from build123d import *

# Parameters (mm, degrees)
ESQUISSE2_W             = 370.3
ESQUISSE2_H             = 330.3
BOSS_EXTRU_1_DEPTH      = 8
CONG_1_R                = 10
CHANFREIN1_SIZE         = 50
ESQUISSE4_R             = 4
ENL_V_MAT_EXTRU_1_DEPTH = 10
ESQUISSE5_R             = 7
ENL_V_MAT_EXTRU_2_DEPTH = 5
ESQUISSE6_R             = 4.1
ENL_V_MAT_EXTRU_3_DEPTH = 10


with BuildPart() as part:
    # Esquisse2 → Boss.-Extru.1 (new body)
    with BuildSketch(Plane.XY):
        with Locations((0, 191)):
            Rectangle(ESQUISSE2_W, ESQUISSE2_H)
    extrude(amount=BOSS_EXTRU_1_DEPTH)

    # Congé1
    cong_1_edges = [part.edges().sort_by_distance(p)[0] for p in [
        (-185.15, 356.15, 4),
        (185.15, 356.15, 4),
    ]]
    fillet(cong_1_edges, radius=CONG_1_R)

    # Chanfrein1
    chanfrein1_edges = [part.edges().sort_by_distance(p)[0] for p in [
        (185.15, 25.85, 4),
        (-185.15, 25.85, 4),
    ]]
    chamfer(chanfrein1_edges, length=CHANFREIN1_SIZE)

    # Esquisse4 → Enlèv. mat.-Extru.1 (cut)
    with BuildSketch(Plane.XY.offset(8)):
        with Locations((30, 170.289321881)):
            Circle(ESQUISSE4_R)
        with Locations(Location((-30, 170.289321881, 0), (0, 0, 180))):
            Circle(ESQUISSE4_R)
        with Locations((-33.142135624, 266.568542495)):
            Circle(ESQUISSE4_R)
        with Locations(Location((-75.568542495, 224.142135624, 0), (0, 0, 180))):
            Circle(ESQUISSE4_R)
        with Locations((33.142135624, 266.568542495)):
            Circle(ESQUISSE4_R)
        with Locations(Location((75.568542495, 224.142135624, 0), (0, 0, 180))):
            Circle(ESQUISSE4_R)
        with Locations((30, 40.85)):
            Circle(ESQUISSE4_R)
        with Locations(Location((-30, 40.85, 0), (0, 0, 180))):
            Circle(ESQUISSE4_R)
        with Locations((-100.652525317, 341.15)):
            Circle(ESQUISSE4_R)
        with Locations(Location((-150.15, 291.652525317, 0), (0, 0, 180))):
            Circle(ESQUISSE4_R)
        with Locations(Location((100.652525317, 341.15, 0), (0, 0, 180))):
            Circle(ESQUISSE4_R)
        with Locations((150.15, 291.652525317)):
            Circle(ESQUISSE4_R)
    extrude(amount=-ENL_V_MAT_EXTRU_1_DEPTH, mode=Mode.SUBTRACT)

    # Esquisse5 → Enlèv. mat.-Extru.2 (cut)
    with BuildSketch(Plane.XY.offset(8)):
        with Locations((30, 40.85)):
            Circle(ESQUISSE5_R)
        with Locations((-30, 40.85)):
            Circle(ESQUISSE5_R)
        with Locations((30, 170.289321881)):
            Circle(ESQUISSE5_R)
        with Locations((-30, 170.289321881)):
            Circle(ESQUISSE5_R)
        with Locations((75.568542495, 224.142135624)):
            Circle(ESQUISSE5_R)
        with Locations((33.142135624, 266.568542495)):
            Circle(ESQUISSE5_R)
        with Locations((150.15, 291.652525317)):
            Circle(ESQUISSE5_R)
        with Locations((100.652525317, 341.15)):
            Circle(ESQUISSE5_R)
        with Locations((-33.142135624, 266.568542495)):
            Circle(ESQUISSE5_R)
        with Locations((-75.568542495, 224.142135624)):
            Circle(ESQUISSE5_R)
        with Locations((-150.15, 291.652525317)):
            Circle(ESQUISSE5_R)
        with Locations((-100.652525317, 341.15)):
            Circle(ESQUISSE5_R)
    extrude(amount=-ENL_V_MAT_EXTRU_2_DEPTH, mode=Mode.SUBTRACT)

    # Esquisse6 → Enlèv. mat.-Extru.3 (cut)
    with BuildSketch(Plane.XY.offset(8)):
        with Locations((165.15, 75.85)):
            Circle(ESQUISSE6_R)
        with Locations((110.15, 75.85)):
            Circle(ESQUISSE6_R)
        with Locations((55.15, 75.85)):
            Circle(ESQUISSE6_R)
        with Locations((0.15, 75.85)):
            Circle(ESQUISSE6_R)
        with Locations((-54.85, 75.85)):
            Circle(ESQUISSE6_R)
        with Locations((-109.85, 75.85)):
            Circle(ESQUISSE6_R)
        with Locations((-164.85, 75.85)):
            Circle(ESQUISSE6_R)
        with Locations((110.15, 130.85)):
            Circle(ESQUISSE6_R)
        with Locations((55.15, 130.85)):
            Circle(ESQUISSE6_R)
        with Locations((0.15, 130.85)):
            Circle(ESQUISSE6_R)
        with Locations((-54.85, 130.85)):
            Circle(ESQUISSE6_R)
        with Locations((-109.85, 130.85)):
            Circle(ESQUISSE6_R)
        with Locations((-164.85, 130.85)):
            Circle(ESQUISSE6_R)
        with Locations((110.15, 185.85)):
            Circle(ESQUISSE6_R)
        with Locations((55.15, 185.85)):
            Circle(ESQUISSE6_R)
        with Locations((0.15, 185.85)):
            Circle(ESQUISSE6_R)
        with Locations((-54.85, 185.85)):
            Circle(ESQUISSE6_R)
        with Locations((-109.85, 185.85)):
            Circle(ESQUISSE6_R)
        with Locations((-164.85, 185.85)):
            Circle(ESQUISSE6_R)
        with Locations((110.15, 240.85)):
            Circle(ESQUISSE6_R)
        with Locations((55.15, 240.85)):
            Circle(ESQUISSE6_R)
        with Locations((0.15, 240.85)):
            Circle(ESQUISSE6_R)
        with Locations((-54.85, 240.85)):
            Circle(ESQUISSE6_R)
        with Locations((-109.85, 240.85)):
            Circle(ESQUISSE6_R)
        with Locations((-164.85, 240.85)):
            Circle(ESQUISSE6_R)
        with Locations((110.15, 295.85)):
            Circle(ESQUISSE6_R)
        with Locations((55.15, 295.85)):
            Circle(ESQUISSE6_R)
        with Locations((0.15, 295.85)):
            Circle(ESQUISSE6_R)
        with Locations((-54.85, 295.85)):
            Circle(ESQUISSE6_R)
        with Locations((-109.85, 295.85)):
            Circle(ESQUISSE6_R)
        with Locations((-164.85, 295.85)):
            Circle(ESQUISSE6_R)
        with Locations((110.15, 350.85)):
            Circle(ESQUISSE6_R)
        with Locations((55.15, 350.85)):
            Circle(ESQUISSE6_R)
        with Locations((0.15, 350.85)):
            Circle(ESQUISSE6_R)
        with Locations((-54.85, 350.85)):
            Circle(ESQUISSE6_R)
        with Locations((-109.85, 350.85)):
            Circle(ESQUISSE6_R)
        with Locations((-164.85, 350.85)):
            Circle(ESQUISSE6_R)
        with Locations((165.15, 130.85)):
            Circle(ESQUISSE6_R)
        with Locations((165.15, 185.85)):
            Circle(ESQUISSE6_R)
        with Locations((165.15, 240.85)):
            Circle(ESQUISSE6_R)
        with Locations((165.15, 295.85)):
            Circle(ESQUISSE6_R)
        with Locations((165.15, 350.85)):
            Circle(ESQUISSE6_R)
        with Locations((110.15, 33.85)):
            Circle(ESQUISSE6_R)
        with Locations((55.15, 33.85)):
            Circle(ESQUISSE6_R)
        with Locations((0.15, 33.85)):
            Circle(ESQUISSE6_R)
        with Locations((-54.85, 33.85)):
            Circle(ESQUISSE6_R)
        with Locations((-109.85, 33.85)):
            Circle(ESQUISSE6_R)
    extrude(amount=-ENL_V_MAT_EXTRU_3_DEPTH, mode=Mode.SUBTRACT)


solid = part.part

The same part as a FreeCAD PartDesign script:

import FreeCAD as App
import Part
import Sketcher
Q = App.Units.Quantity


def edges_at(feature, points):
    """Names of the edges that pass closest to the given points."""
    edges = feature.Shape.Edges
    near = lambda p: min(range(len(edges)), key=lambda i: edges[i].distToShape(Part.Vertex(*p))[0])
    return sorted({f"Edge{near(p) + 1}" for p in points})


def add_polygon(sketch, points):
    """Adds a closed chain of lines whose ends are joined by coincident constraints."""
    first, n = sketch.GeometryCount, len(points)
    for a, b in zip(points, points[1:] + points[:1]):
        sketch.addGeometry(Part.LineSegment(App.Vector(*a, 0), App.Vector(*b, 0)), False)
    for i in range(n):
        sketch.addConstraint(Sketcher.Constraint("Coincident", first + i, 2, first + (i + 1) % n, 1))

doc = App.newDocument("Part")
body = doc.addObject("PartDesign::Body", "Body")

# Sketch on XY plane
sketch1 = doc.addObject("Sketcher::SketchObject", "Sketch")
body.addObject(sketch1)
sketch1.AttachmentSupport = (doc.XY_Plane, [""])
sketch1.MapMode = "FlatFace"
add_polygon(sketch1, [(-185, 356), (-185, 26), (185, 26), (185, 356)])  # lines 0-3
sketch1.addConstraint([
    Sketcher.Constraint("Vertical", 0),
    Sketcher.Constraint("Horizontal", 1),
    Sketcher.Constraint("Vertical", 2),
    Sketcher.Constraint("Horizontal", 3),
    Sketcher.Constraint("DistanceX", 1, 1, 1, 2, Q("370.3 mm")),
    Sketcher.Constraint("DistanceY", 0, 2, 0, 1, Q("330.3 mm")),
    Sketcher.Constraint("DistanceX", 0, 2, -1, 1, Q("185.15 mm")),
    Sketcher.Constraint("DistanceY", -1, 1, 0, 2, Q("25.85 mm")),
])
pad1 = doc.addObject("PartDesign::Pad", "Pad")
body.addObject(pad1)
pad1.Profile = sketch1
pad1.Length = 8
doc.recompute()

fillet = doc.addObject("PartDesign::Fillet", "Fillet")
body.addObject(fillet)
fillet.Base = (pad1, edges_at(pad1, [(-185.15, 356.15, 4), (185.15, 356.15, 4)]))
fillet.Radius = 10
doc.recompute()

chamfer = doc.addObject("PartDesign::Chamfer", "Chamfer")
body.addObject(chamfer)
chamfer.Base = (fillet, edges_at(fillet, [(185.15, 25.85, 4), (-185.15, 25.85, 4)]))
chamfer.Size = 50

# Sketch on XY plane
sketch2 = doc.addObject("Sketcher::SketchObject", "Sketch001")
body.addObject(sketch2)
sketch2.AttachmentSupport = (doc.XY_Plane, [""])
sketch2.MapMode = "FlatFace"
sketch2.AttachmentOffset = App.Placement(App.Vector(0, 0, 8), App.Rotation())
sketch2.addGeometry([
    Part.Circle(App.Vector(30, 170.3, 0), App.Vector(0, 0, 1), 4),  # 0
    Part.Circle(App.Vector(-30, 170.3, 0), App.Vector(0, 0, 1), 4),  # 1
    Part.Circle(App.Vector(-33.1, 266.6, 0), App.Vector(0, 0, 1), 4),  # 2
    Part.Circle(App.Vector(-75.6, 224.1, 0), App.Vector(0, 0, 1), 4),  # 3
    Part.Circle(App.Vector(33.1, 266.6, 0), App.Vector(0, 0, 1), 4),  # 4
    Part.Circle(App.Vector(75.6, 224.1, 0), App.Vector(0, 0, 1), 4),  # 5
    Part.Circle(App.Vector(30, 40.9, 0), App.Vector(0, 0, 1), 4),  # 6
    Part.Circle(App.Vector(-30, 40.9, 0), App.Vector(0, 0, 1), 4),  # 7
    Part.Circle(App.Vector(-100.7, 341.1, 0), App.Vector(0, 0, 1), 4),  # 8
    Part.Circle(App.Vector(-150.2, 291.7, 0), App.Vector(0, 0, 1), 4),  # 9
    Part.Circle(App.Vector(100.7, 341.1, 0), App.Vector(0, 0, 1), 4),  # 10
    Part.Circle(App.Vector(150.2, 291.7, 0), App.Vector(0, 0, 1), 4),  # 11
], False)
sketch2.addConstraint([
    Sketcher.Constraint("Equal", 0, 1),
    Sketcher.Constraint("Equal", 1, 2),
    Sketcher.Constraint("Equal", 2, 3),
    Sketcher.Constraint("Equal", 3, 4),
    Sketcher.Constraint("Equal", 4, 5),
    Sketcher.Constraint("Equal", 5, 6),
    Sketcher.Constraint("Equal", 6, 7),
    Sketcher.Constraint("Equal", 7, 8),
    Sketcher.Constraint("Equal", 8, 9),
    Sketcher.Constraint("Equal", 9, 10),
    Sketcher.Constraint("Equal", 10, 11),
    Sketcher.Constraint("Symmetric", 0, 3, 1, 3, -2),
    Sketcher.Constraint("Symmetric", 2, 3, 4, 3, -2),
    Sketcher.Constraint("Symmetric", 3, 3, 5, 3, -2),
    Sketcher.Constraint("Symmetric", 6, 3, 7, 3, -2),
    Sketcher.Constraint("Symmetric", 8, 3, 10, 3, -2),
    Sketcher.Constraint("Symmetric", 9, 3, 11, 3, -2),
    Sketcher.Constraint("Vertical", 0, 3, 6, 3),
    Sketcher.Constraint("Diameter", 0, Q("8 mm")),
    Sketcher.Constraint("DistanceX", -1, 1, 0, 3, Q("30 mm")),
    Sketcher.Constraint("DistanceY", -1, 1, 6, 3, Q("40.85 mm")),
    Sketcher.Constraint("DistanceY", -1, 1, 8, 3, Q("341.15 mm")),
    Sketcher.Constraint("DistanceX", 9, 3, -1, 1, Q("150.15 mm")),
    Sketcher.Constraint("DistanceY", -1, 1, 0, 3, Q("170.289322 mm")),
    Sketcher.Constraint("DistanceY", 1, 3, 2, 3, Q("96.279221 mm")),
    Sketcher.Constraint("DistanceX", 2, 3, 4, 3, Q("66.284271 mm")),
    Sketcher.Constraint("DistanceX", 3, 3, 4, 3, Q("108.710678 mm")),
    Sketcher.Constraint("DistanceX", 8, 3, 2, 3, Q("67.51039 mm")),
    Sketcher.Constraint("DistanceY", 3, 3, 9, 3, Q("67.51039 mm")),
    Sketcher.Constraint("DistanceY", -1, 1, 3, 3, Q("224.142136 mm")),
])
pocket1 = doc.addObject("PartDesign::Pocket", "Pocket")
body.addObject(pocket1)
pocket1.Profile = sketch2
pocket1.Length = 10

# Sketch on XY plane
sketch3 = doc.addObject("Sketcher::SketchObject", "Sketch002")
body.addObject(sketch3)
sketch3.AttachmentSupport = (doc.XY_Plane, [""])
sketch3.MapMode = "FlatFace"
sketch3.AttachmentOffset = App.Placement(App.Vector(0, 0, 8), App.Rotation())
sketch3.addGeometry([
    Part.Circle(App.Vector(30, 41, 0), App.Vector(0, 0, 1), 7),  # 0
    Part.Circle(App.Vector(-30, 41, 0), App.Vector(0, 0, 1), 7),  # 1
    Part.Circle(App.Vector(30, 170, 0), App.Vector(0, 0, 1), 7),  # 2
    Part.Circle(App.Vector(-30, 170, 0), App.Vector(0, 0, 1), 7),  # 3
    Part.Circle(App.Vector(76, 224, 0), App.Vector(0, 0, 1), 7),  # 4
    Part.Circle(App.Vector(33, 267, 0), App.Vector(0, 0, 1), 7),  # 5
    Part.Circle(App.Vector(150, 292, 0), App.Vector(0, 0, 1), 7),  # 6
    Part.Circle(App.Vector(101, 341, 0), App.Vector(0, 0, 1), 7),  # 7
    Part.Circle(App.Vector(-33, 267, 0), App.Vector(0, 0, 1), 7),  # 8
    Part.Circle(App.Vector(-76, 224, 0), App.Vector(0, 0, 1), 7),  # 9
    Part.Circle(App.Vector(-150, 292, 0), App.Vector(0, 0, 1), 7),  # 10
    Part.Circle(App.Vector(-101, 341, 0), App.Vector(0, 0, 1), 7),  # 11
], False)
sketch3.addConstraint([
    Sketcher.Constraint("Equal", 0, 1),
    Sketcher.Constraint("Equal", 1, 2),
    Sketcher.Constraint("Equal", 2, 3),
    Sketcher.Constraint("Equal", 3, 4),
    Sketcher.Constraint("Equal", 4, 5),
    Sketcher.Constraint("Equal", 5, 6),
    Sketcher.Constraint("Equal", 6, 7),
    Sketcher.Constraint("Equal", 7, 8),
    Sketcher.Constraint("Equal", 8, 9),
    Sketcher.Constraint("Equal", 9, 10),
    Sketcher.Constraint("Equal", 10, 11),
    Sketcher.Constraint("Symmetric", 0, 3, 1, 3, -2),
    Sketcher.Constraint("Symmetric", 2, 3, 3, 3, -2),
    Sketcher.Constraint("Symmetric", 5, 3, 8, 3, -2),
    Sketcher.Constraint("Symmetric", 4, 3, 9, 3, -2),
    Sketcher.Constraint("Symmetric", 6, 3, 10, 3, -2),
    Sketcher.Constraint("Symmetric", 7, 3, 11, 3, -2),
    Sketcher.Constraint("Vertical", 0, 3, 2, 3),
    Sketcher.Constraint("Diameter", 0, Q("14 mm")),
    Sketcher.Constraint("DistanceX", -1, 1, 0, 3, Q("30 mm")),
    Sketcher.Constraint("DistanceY", -1, 1, 0, 3, Q("40.85 mm")),
    Sketcher.Constraint("DistanceX", -1, 1, 6, 3, Q("150.15 mm")),
    Sketcher.Constraint("DistanceY", -1, 1, 7, 3, Q("341.15 mm")),
    Sketcher.Constraint("DistanceY", -1, 1, 2, 3, Q("170.289322 mm")),
    Sketcher.Constraint("DistanceY", 2, 3, 5, 3, Q("96.279221 mm")),
    Sketcher.Constraint("DistanceY", 4, 3, 6, 3, Q("67.51039 mm")),
    Sketcher.Constraint("DistanceX", 5, 3, 7, 3, Q("67.51039 mm")),
    Sketcher.Constraint("DistanceX", 8, 3, 5, 3, Q("66.284271 mm")),
    Sketcher.Constraint("DistanceX", 8, 3, 4, 3, Q("108.710678 mm")),
    Sketcher.Constraint("DistanceY", -1, 1, 4, 3, Q("224.142136 mm")),
])
pocket2 = doc.addObject("PartDesign::Pocket", "Pocket001")
body.addObject(pocket2)
pocket2.Profile = sketch3
pocket2.Length = 5

# Sketch on XY plane
sketch4 = doc.addObject("Sketcher::SketchObject", "Sketch003")
body.addObject(sketch4)
sketch4.AttachmentSupport = (doc.XY_Plane, [""])
sketch4.MapMode = "FlatFace"
sketch4.AttachmentOffset = App.Placement(App.Vector(0, 0, 8), App.Rotation())
sketch4.addGeometry([
    Part.Circle(App.Vector(165.2, 75.8, 0), App.Vector(0, 0, 1), 4.1),  # 0
    Part.Circle(App.Vector(110.2, 75.8, 0), App.Vector(0, 0, 1), 4.1),  # 1
    Part.Circle(App.Vector(55.1, 75.8, 0), App.Vector(0, 0, 1), 4.1),  # 2
    Part.Circle(App.Vector(0.1, 75.8, 0), App.Vector(0, 0, 1), 4.1),  # 3
    Part.Circle(App.Vector(-54.9, 75.8, 0), App.Vector(0, 0, 1), 4.1),  # 4
    Part.Circle(App.Vector(-109.8, 75.8, 0), App.Vector(0, 0, 1), 4.1),  # 5
    Part.Circle(App.Vector(-164.8, 75.8, 0), App.Vector(0, 0, 1), 4.1),  # 6
    Part.Circle(App.Vector(110.2, 130.8, 0), App.Vector(0, 0, 1), 4.1),  # 7
    Part.Circle(App.Vector(55.1, 130.8, 0), App.Vector(0, 0, 1), 4.1),  # 8
    Part.Circle(App.Vector(0.1, 130.8, 0), App.Vector(0, 0, 1), 4.1),  # 9
    Part.Circle(App.Vector(-54.9, 130.8, 0), App.Vector(0, 0, 1), 4.1),  # 10
    Part.Circle(App.Vector(-109.8, 130.8, 0), App.Vector(0, 0, 1), 4.1),  # 11
    Part.Circle(App.Vector(-164.8, 130.8, 0), App.Vector(0, 0, 1), 4.1),  # 12
    Part.Circle(App.Vector(110.2, 185.8, 0), App.Vector(0, 0, 1), 4.1),  # 13
    Part.Circle(App.Vector(55.1, 185.8, 0), App.Vector(0, 0, 1), 4.1),  # 14
    Part.Circle(App.Vector(0.1, 185.8, 0), App.Vector(0, 0, 1), 4.1),  # 15
    Part.Circle(App.Vector(-54.9, 185.8, 0), App.Vector(0, 0, 1), 4.1),  # 16
    Part.Circle(App.Vector(-109.8, 185.8, 0), App.Vector(0, 0, 1), 4.1),  # 17
    Part.Circle(App.Vector(-164.8, 185.8, 0), App.Vector(0, 0, 1), 4.1),  # 18
    Part.Circle(App.Vector(110.2, 240.8, 0), App.Vector(0, 0, 1), 4.1),  # 19
    Part.Circle(App.Vector(55.1, 240.8, 0), App.Vector(0, 0, 1), 4.1),  # 20
    Part.Circle(App.Vector(0.1, 240.8, 0), App.Vector(0, 0, 1), 4.1),  # 21
    Part.Circle(App.Vector(-54.9, 240.8, 0), App.Vector(0, 0, 1), 4.1),  # 22
    Part.Circle(App.Vector(-109.8, 240.8, 0), App.Vector(0, 0, 1), 4.1),  # 23
    Part.Circle(App.Vector(-164.8, 240.8, 0), App.Vector(0, 0, 1), 4.1),  # 24
    Part.Circle(App.Vector(110.2, 295.9, 0), App.Vector(0, 0, 1), 4.1),  # 25
    Part.Circle(App.Vector(55.1, 295.9, 0), App.Vector(0, 0, 1), 4.1),  # 26
    Part.Circle(App.Vector(0.1, 295.9, 0), App.Vector(0, 0, 1), 4.1),  # 27
    Part.Circle(App.Vector(-54.9, 295.9, 0), App.Vector(0, 0, 1), 4.1),  # 28
    Part.Circle(App.Vector(-109.8, 295.9, 0), App.Vector(0, 0, 1), 4.1),  # 29
    Part.Circle(App.Vector(-164.8, 295.9, 0), App.Vector(0, 0, 1), 4.1),  # 30
    Part.Circle(App.Vector(110.2, 350.9, 0), App.Vector(0, 0, 1), 4.1),  # 31
    Part.Circle(App.Vector(55.1, 350.9, 0), App.Vector(0, 0, 1), 4.1),  # 32
    Part.Circle(App.Vector(0.1, 350.9, 0), App.Vector(0, 0, 1), 4.1),  # 33
    Part.Circle(App.Vector(-54.9, 350.9, 0), App.Vector(0, 0, 1), 4.1),  # 34
    Part.Circle(App.Vector(-109.8, 350.9, 0), App.Vector(0, 0, 1), 4.1),  # 35
    Part.Circle(App.Vector(-164.8, 350.9, 0), App.Vector(0, 0, 1), 4.1),  # 36
    Part.Circle(App.Vector(165.2, 130.8, 0), App.Vector(0, 0, 1), 4.1),  # 37
    Part.Circle(App.Vector(165.2, 185.8, 0), App.Vector(0, 0, 1), 4.1),  # 38
    Part.Circle(App.Vector(165.2, 240.8, 0), App.Vector(0, 0, 1), 4.1),  # 39
    Part.Circle(App.Vector(165.2, 295.9, 0), App.Vector(0, 0, 1), 4.1),  # 40
    Part.Circle(App.Vector(165.2, 350.9, 0), App.Vector(0, 0, 1), 4.1),  # 41
    Part.Circle(App.Vector(110.2, 33.9, 0), App.Vector(0, 0, 1), 4.1),  # 42
    Part.Circle(App.Vector(55.1, 33.9, 0), App.Vector(0, 0, 1), 4.1),  # 43
    Part.Circle(App.Vector(0.1, 33.9, 0), App.Vector(0, 0, 1), 4.1),  # 44
    Part.Circle(App.Vector(-54.9, 33.9, 0), App.Vector(0, 0, 1), 4.1),  # 45
    Part.Circle(App.Vector(-109.8, 33.9, 0), App.Vector(0, 0, 1), 4.1),  # 46
], False)
sketch4.addConstraint([
    Sketcher.Constraint("Equal", 0, 1),
    Sketcher.Constraint("Equal", 1, 2),
    Sketcher.Constraint("Equal", 2, 3),
    Sketcher.Constraint("Equal", 3, 4),
    Sketcher.Constraint("Equal", 4, 5),
    Sketcher.Constraint("Equal", 5, 6),
    Sketcher.Constraint("Equal", 6, 7),
    Sketcher.Constraint("Equal", 7, 8),
    Sketcher.Constraint("Equal", 8, 9),
    Sketcher.Constraint("Equal", 9, 10),
    Sketcher.Constraint("Equal", 10, 11),
    Sketcher.Constraint("Equal", 11, 12),
    Sketcher.Constraint("Equal", 12, 13),
    Sketcher.Constraint("Equal", 13, 14),
    Sketcher.Constraint("Equal", 14, 15),
    Sketcher.Constraint("Equal", 15, 16),
    Sketcher.Constraint("Equal", 16, 17),
    Sketcher.Constraint("Equal", 17, 18),
    Sketcher.Constraint("Equal", 18, 19),
    Sketcher.Constraint("Equal", 19, 20),
    Sketcher.Constraint("Equal", 20, 21),
    Sketcher.Constraint("Equal", 21, 22),
    Sketcher.Constraint("Equal", 22, 23),
    Sketcher.Constraint("Equal", 23, 24),
    Sketcher.Constraint("Equal", 24, 25),
    Sketcher.Constraint("Equal", 25, 26),
    Sketcher.Constraint("Equal", 26, 27),
    Sketcher.Constraint("Equal", 27, 28),
    Sketcher.Constraint("Equal", 28, 29),
    Sketcher.Constraint("Equal", 29, 30),
    Sketcher.Constraint("Equal", 30, 31),
    Sketcher.Constraint("Equal", 31, 32),
    Sketcher.Constraint("Equal", 32, 33),
    Sketcher.Constraint("Equal", 33, 34),
    Sketcher.Constraint("Equal", 34, 35),
    Sketcher.Constraint("Equal", 35, 36),
    Sketcher.Constraint("Equal", 36, 37),
    Sketcher.Constraint("Equal", 37, 38),
    Sketcher.Constraint("Equal", 38, 39),
    Sketcher.Constraint("Equal", 39, 40),
    Sketcher.Constraint("Equal", 40, 41),
    Sketcher.Constraint("Equal", 41, 42),
    Sketcher.Constraint("Equal", 42, 43),
    Sketcher.Constraint("Equal", 43, 44),
    Sketcher.Constraint("Equal", 44, 45),
    Sketcher.Constraint("Equal", 45, 46),
    Sketcher.Constraint("Horizontal", 0, 3, 1, 3),
    Sketcher.Constraint("Horizontal", 1, 3, 2, 3),
    Sketcher.Constraint("Horizontal", 2, 3, 3, 3),
    Sketcher.Constraint("Horizontal", 3, 3, 4, 3),
    Sketcher.Constraint("Horizontal", 4, 3, 5, 3),
    Sketcher.Constraint("Horizontal", 5, 3, 6, 3),
    Sketcher.Constraint("Horizontal", 7, 3, 8, 3),
    Sketcher.Constraint("Horizontal", 8, 3, 9, 3),
    Sketcher.Constraint("Horizontal", 9, 3, 10, 3),
    Sketcher.Constraint("Horizontal", 10, 3, 11, 3),
    Sketcher.Constraint("Horizontal", 11, 3, 12, 3),
    Sketcher.Constraint("Horizontal", 13, 3, 14, 3),
    Sketcher.Constraint("Horizontal", 14, 3, 15, 3),
    Sketcher.Constraint("Horizontal", 15, 3, 16, 3),
    Sketcher.Constraint("Horizontal", 16, 3, 17, 3),
    Sketcher.Constraint("Horizontal", 17, 3, 18, 3),
    Sketcher.Constraint("Horizontal", 19, 3, 20, 3),
    Sketcher.Constraint("Horizontal", 20, 3, 21, 3),
    Sketcher.Constraint("Horizontal", 21, 3, 22, 3),
    Sketcher.Constraint("Horizontal", 22, 3, 23, 3),
    Sketcher.Constraint("Horizontal", 23, 3, 24, 3),
    Sketcher.Constraint("Horizontal", 25, 3, 26, 3),
    Sketcher.Constraint("Horizontal", 26, 3, 27, 3),
    Sketcher.Constraint("Horizontal", 27, 3, 28, 3),
    Sketcher.Constraint("Horizontal", 28, 3, 29, 3),
    Sketcher.Constraint("Horizontal", 29, 3, 30, 3),
    Sketcher.Constraint("Horizontal", 31, 3, 32, 3),
    Sketcher.Constraint("Horizontal", 32, 3, 33, 3),
    Sketcher.Constraint("Horizontal", 33, 3, 34, 3),
    Sketcher.Constraint("Horizontal", 34, 3, 35, 3),
    Sketcher.Constraint("Horizontal", 35, 3, 36, 3),
    Sketcher.Constraint("Horizontal", 12, 3, 37, 3),
    Sketcher.Constraint("Horizontal", 18, 3, 38, 3),
    Sketcher.Constraint("Horizontal", 24, 3, 39, 3),
    Sketcher.Constraint("Horizontal", 30, 3, 40, 3),
    Sketcher.Constraint("Horizontal", 36, 3, 41, 3),
    Sketcher.Constraint("Horizontal", 42, 3, 43, 3),
    Sketcher.Constraint("Horizontal", 43, 3, 44, 3),
    Sketcher.Constraint("Horizontal", 44, 3, 45, 3),
    Sketcher.Constraint("Horizontal", 45, 3, 46, 3),
    Sketcher.Constraint("Vertical", 1, 3, 7, 3),
    Sketcher.Constraint("Vertical", 2, 3, 8, 3),
    Sketcher.Constraint("Vertical", 3, 3, 9, 3),
    Sketcher.Constraint("Vertical", 4, 3, 10, 3),
    Sketcher.Constraint("Vertical", 5, 3, 11, 3),
    Sketcher.Constraint("Vertical", 6, 3, 12, 3),
    Sketcher.Constraint("Vertical", 7, 3, 13, 3),
    Sketcher.Constraint("Vertical", 8, 3, 14, 3),
    Sketcher.Constraint("Vertical", 9, 3, 15, 3),
    Sketcher.Constraint("Vertical", 10, 3, 16, 3),
    Sketcher.Constraint("Vertical", 11, 3, 17, 3),
    Sketcher.Constraint("Vertical", 12, 3, 18, 3),
    Sketcher.Constraint("Vertical", 13, 3, 19, 3),
    Sketcher.Constraint("Vertical", 14, 3, 20, 3),
    Sketcher.Constraint("Vertical", 15, 3, 21, 3),
    Sketcher.Constraint("Vertical", 16, 3, 22, 3),
    Sketcher.Constraint("Vertical", 17, 3, 23, 3),
    Sketcher.Constraint("Vertical", 18, 3, 24, 3),
    Sketcher.Constraint("Vertical", 19, 3, 25, 3),
    Sketcher.Constraint("Vertical", 20, 3, 26, 3),
    Sketcher.Constraint("Vertical", 21, 3, 27, 3),
    Sketcher.Constraint("Vertical", 22, 3, 28, 3),
    Sketcher.Constraint("Vertical", 23, 3, 29, 3),
    Sketcher.Constraint("Vertical", 24, 3, 30, 3),
    Sketcher.Constraint("Vertical", 25, 3, 31, 3),
    Sketcher.Constraint("Vertical", 26, 3, 32, 3),
    Sketcher.Constraint("Vertical", 27, 3, 33, 3),
    Sketcher.Constraint("Vertical", 28, 3, 34, 3),
    Sketcher.Constraint("Vertical", 29, 3, 35, 3),
    Sketcher.Constraint("Vertical", 30, 3, 36, 3),
    Sketcher.Constraint("Vertical", 0, 3, 37, 3),
    Sketcher.Constraint("Vertical", 37, 3, 38, 3),
    Sketcher.Constraint("Vertical", 38, 3, 39, 3),
    Sketcher.Constraint("Vertical", 39, 3, 40, 3),
    Sketcher.Constraint("Vertical", 40, 3, 41, 3),
    Sketcher.Constraint("Vertical", 31, 3, 42, 3),
    Sketcher.Constraint("Vertical", 32, 3, 43, 3),
    Sketcher.Constraint("Vertical", 33, 3, 44, 3),
    Sketcher.Constraint("Vertical", 34, 3, 45, 3),
    Sketcher.Constraint("Vertical", 35, 3, 46, 3),
    Sketcher.Constraint("Diameter", 0, Q("8.2 mm")),
    Sketcher.Constraint("DistanceX", 1, 3, 0, 3, Q("55 mm")),
    Sketcher.Constraint("DistanceX", 2, 3, 1, 3, Q("55 mm")),
    Sketcher.Constraint("DistanceX", 3, 3, 2, 3, Q("55 mm")),
    Sketcher.Constraint("DistanceX", 4, 3, 3, 3, Q("55 mm")),
    Sketcher.Constraint("DistanceX", 5, 3, 4, 3, Q("55 mm")),
    Sketcher.Constraint("DistanceX", 6, 3, 5, 3, Q("55 mm")),
    Sketcher.Constraint("DistanceY", 1, 3, 7, 3, Q("55 mm")),
    Sketcher.Constraint("DistanceY", 7, 3, 13, 3, Q("55 mm")),
    Sketcher.Constraint("DistanceY", 13, 3, 19, 3, Q("55 mm")),
    Sketcher.Constraint("DistanceY", 19, 3, 25, 3, Q("55 mm")),
    Sketcher.Constraint("DistanceY", 25, 3, 31, 3, Q("55 mm")),
    Sketcher.Constraint("DistanceY", 42, 3, 1, 3, Q("42 mm")),
    Sketcher.Constraint("DistanceX", -1, 1, 0, 3, Q("165.15 mm")),
    Sketcher.Constraint("DistanceY", -1, 1, 0, 3, Q("75.85 mm")),
])
pocket3 = doc.addObject("PartDesign::Pocket", "Pocket002")
body.addObject(pocket3)
pocket3.Profile = sketch4
pocket3.Length = 10

doc.recompute()
